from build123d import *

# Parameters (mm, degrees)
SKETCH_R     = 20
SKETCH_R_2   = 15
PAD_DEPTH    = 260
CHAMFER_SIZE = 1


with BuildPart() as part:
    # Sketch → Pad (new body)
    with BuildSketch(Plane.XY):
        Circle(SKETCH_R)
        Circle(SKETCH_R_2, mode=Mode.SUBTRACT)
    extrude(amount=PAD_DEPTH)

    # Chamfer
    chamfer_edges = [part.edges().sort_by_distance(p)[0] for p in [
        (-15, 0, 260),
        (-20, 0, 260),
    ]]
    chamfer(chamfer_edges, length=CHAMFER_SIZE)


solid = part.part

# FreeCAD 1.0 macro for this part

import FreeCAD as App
import Part
import Sketcher
from FreeCAD import Vector
Q = App.Units.Quantity


def edges_at(feature, points):
    """Names of the edges that pass closest to the given points."""
    edges = feature.Shape.Edges
    near = lambda p: min(range(len(edges)), key=lambda i: edges[i].distToShape(Part.Vertex(*p))[0])
    return sorted({f"Edge{near(p) + 1}" for p in points})

doc = App.newDocument("Part")
body = doc.addObject("PartDesign::Body", "Body")

# Sketch on XY plane
sketch1 = body.newObject("Sketcher::SketchObject", "Sketch")
sketch1.AttachmentSupport = (doc.getObject("XY_Plane"), [""])
sketch1.MapMode = "FlatFace"
sketch1.addGeometry([
    Part.Circle(Vector(0, 0, 0), Vector(0, 0, 1), 20),
    Part.Circle(Vector(0, 0, 0), Vector(0, 0, 1), 15),
], False)
sketch1.addConstraint([
    Sketcher.Constraint("Coincident", 0, 3, -1, 1),
    Sketcher.Constraint("Coincident", 1, 3, -1, 1),
    Sketcher.Constraint("Diameter", 0, Q("40 mm")),
    Sketcher.Constraint("Diameter", 1, Q("30 mm")),
])
pad1 = body.newObject("PartDesign::Pad", "Pad")
pad1.Profile = sketch1
pad1.Length = 260
doc.recompute()

chamfer = body.newObject("PartDesign::Chamfer", "Chamfer")
chamfer.Base = (pad1, edges_at(pad1, [(-15, 0, 260), (-20, 0, 260)]))
chamfer.Size = 1

doc.recompute()
